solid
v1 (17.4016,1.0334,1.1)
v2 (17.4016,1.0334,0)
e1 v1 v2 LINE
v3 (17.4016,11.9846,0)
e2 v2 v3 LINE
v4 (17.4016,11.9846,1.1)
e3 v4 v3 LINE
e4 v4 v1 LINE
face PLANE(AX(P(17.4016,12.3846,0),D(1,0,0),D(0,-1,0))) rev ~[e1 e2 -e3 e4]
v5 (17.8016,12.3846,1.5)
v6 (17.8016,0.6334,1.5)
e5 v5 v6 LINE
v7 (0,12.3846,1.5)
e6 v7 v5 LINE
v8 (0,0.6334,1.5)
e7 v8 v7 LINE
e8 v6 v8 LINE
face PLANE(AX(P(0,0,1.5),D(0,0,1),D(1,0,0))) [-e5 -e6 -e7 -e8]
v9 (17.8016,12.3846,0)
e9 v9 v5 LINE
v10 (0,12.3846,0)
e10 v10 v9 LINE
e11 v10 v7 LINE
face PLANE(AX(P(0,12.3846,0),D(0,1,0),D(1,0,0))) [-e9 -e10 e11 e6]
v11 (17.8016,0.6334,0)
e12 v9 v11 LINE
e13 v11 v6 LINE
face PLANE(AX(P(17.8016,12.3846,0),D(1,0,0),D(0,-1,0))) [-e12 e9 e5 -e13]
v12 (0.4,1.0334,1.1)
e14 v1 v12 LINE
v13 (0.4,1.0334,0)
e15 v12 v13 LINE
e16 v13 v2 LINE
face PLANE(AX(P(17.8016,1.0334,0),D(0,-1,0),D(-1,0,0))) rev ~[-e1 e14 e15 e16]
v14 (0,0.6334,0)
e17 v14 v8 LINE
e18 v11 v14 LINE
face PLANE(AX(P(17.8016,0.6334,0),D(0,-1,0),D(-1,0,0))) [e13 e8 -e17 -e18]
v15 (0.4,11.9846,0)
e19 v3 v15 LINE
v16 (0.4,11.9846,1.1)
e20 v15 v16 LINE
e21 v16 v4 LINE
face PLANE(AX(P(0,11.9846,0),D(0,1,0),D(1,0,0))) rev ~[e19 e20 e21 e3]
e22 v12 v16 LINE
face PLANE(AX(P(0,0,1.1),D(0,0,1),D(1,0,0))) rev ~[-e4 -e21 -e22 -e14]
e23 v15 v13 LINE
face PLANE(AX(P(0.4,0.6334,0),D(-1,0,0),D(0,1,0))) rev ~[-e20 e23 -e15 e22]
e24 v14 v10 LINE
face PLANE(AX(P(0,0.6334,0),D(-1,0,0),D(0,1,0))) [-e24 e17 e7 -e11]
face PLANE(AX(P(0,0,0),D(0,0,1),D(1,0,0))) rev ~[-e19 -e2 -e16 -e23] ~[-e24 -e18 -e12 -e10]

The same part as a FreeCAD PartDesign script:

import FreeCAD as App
import Part
import Sketcher

V = App.Vector
Q = App.Units.Quantity


def faces_at(feature, points):
    """Names of the faces that lie closest to the given points."""
    faces = feature.Shape.Faces
    near = lambda p: min(range(len(faces)), key=lambda i: faces[i].distToShape(Part.Vertex(*p))[0])
    return sorted({f"Face{near(p) + 1}" for p in points})


def add_polygon(sketch, points):
    """Adds a closed chain of lines whose ends are joined by coincident constraints."""
    first, n = sketch.GeometryCount, len(points)
    for a, b in zip(points, points[1:] + points[:1]):
        sketch.addGeometry(Part.LineSegment(App.Vector(*a, 0), App.Vector(*b, 0)), False)
    for i in range(n):
        sketch.addConstraint(Sketcher.Constraint("Coincident", first + i, 2, first + (i + 1) % n, 1))

doc = App.newDocument("Part")
body = doc.addObject("PartDesign::Body", "Body")

# Sketch on XY plane
sketch1 = doc.addObject("Sketcher::SketchObject", "Sketch")
body.addObject(sketch1)
sketch1.AttachmentSupport = (doc.XY_Plane, [""])
sketch1.MapMode = "FlatFace"
add_polygon(sketch1, [(18, 12), (0, 12), (0, 1), (18, 1)])  # lines 0-3
sketch1.addConstraint([
    Sketcher.Constraint("Horizontal", 0),
    Sketcher.Constraint("Vertical", 1),
    Sketcher.Constraint("Horizontal", 2),
    Sketcher.Constraint("Vertical", 3),
    Sketcher.Constraint("PointOnObject", 0, 2, -2),
    Sketcher.Constraint("DistanceX", 0, 2, 0, 1, Q("17.8016 mm")),
    Sketcher.Constraint("DistanceY", 1, 2, 1, 1, Q("11.7512 mm")),
    Sketcher.Constraint("DistanceY", -1, 1, 0, 2, Q("12.3846 mm")),
])
pad1 = doc.addObject("PartDesign::Pad", "Pad")
body.addObject(pad1)
pad1.Profile = sketch1
pad1.Length = 1.5
doc.recompute()

thickness = doc.addObject("PartDesign::Thickness", "Thickness")
body.addObject(thickness)
thickness.Base = (pad1, faces_at(pad1, [(5.934, 8.468, 0)]))
thickness.Value = 0.4
thickness.Reversed = True
thickness.Join = "Intersection"

doc.recompute()
